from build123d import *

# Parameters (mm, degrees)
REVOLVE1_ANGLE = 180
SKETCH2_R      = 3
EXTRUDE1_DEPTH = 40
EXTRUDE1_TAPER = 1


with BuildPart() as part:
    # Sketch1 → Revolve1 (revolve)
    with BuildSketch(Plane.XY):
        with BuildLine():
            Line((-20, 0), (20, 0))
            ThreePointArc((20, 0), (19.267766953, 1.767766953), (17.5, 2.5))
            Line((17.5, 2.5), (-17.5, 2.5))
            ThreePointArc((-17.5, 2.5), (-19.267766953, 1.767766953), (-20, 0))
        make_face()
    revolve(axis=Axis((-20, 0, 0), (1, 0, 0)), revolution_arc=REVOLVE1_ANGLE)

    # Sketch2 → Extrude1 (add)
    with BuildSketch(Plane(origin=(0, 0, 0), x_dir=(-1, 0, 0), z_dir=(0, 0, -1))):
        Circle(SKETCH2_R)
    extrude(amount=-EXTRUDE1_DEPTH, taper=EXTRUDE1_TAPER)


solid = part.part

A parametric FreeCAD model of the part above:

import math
import FreeCAD as App
import Part
import Sketcher

V = App.Vector

doc = App.newDocument("Part")
body = doc.addObject("PartDesign::Body", "Body")

# Sketch on XY plane
sketch1 = body.newObject("Sketcher::SketchObject", "Sketch")
sketch1.AttachmentSupport = (doc.getObject("XY_Plane"), [""])
sketch1.MapMode = "FlatFace"
sketch1.addGeometry([
    Part.LineSegment(V(-20, 0, 0), V(20, 0, 0)),
    Part.ArcOfCircle(Part.Circle(V(17.5, 0, 0), V(0, 0, 1), 2.5), math.radians(0), math.radians(90)),
    Part.LineSegment(V(17.5, 2.5, 0), V(-17.5, 2.5, 0)),
    Part.ArcOfCircle(Part.Circle(V(-17.5, 0, 0), V(0, 0, 1), 2.5), math.radians(90), math.radians(180)),
], False)
sketch1.addConstraint([
    Sketcher.Constraint("Coincident", 0, 2, 1, 1),
    Sketcher.Constraint("Tangent", 1, 2, 2, 1),
    Sketcher.Constraint("Tangent", 2, 2, 3, 1),
    Sketcher.Constraint("Coincident", 3, 2, 0, 1),
    Sketcher.Constraint("Horizontal", 0),
    Sketcher.Constraint("Horizontal", 2),
    Sketcher.Constraint("Equal", 1, 3),
    Sketcher.Constraint("Symmetric", 1, 3, 3, 3, -1, 1),
    Sketcher.Constraint("PointOnObject", 0, 2, -1),
    Sketcher.Constraint("Radius", 1, 2.5),
    Sketcher.Constraint("DistanceX", 0, 1, 0, 2, 40.0),
])
revolution = body.newObject("PartDesign::Revolution", "Revolution")
revolution.Profile = sketch1
revolution.ReferenceAxis = (sketch1, ["H_Axis"])
revolution.Angle = 180

# Sketch on XY plane
sketch2 = body.newObject("Sketcher::SketchObject", "Sketch001")
sketch2.AttachmentSupport = (doc.getObject("XY_Plane"), [""])
sketch2.MapMode = "FlatFace"
sketch2.addGeometry(Part.Circle(V(0, 0, 0), V(0, 0, 1), 3), False)
sketch2.addConstraint([
    Sketcher.Constraint("Coincident", 0, 3, -1, 1),
    Sketcher.Constraint("Diameter", 0, 6.0),
])
pad1 = body.newObject("PartDesign::Pad", "Pad")
pad1.Profile = sketch2
pad1.Length = 40
pad1.TaperAngle = -1

doc.recompute()
